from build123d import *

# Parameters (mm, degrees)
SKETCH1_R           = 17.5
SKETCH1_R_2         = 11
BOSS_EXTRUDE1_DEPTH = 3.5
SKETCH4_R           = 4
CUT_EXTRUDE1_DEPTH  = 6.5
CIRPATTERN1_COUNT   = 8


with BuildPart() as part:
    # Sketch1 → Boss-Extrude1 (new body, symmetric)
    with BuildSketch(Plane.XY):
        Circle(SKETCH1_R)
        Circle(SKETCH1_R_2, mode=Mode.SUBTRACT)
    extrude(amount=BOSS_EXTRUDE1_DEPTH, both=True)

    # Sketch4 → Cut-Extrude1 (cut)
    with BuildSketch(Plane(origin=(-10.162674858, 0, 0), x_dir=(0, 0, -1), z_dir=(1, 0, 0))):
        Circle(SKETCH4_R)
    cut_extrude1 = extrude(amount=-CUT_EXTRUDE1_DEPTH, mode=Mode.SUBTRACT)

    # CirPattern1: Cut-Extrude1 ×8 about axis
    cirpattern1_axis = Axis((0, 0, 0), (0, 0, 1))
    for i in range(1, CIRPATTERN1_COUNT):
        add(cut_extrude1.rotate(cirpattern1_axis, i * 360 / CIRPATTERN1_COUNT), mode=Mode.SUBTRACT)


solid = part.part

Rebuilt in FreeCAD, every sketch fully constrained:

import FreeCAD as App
import Part
import Sketcher

V = App.Vector

doc = App.newDocument("Part")
params = doc.addObject("Spreadsheet::Sheet", "Params")
for row, (alias, value) in enumerate([
    ("sketch1_diameter", "35 mm"),
    ("sketch1_diameter2", "22 mm"),
    ("pad1_length", "7 mm"),
    ("sketch2_diameter", "8 mm"),
    ("pocket1_length", "6.5 mm"),
], start=1):
    params.set(f"A{row}", alias)
    params.set(f"B{row}", "=" + value)
    params.setAlias(f"B{row}", alias)

body = doc.addObject("PartDesign::Body", "Body")

# Sketch on XY plane
sketch1 = body.newObject("Sketcher::SketchObject", "Sketch")
sketch1.AttachmentSupport = (doc.getObject("XY_Plane"), [""])
sketch1.MapMode = "FlatFace"
sketch1.addGeometry(Part.Circle(V(0, 0, 0), V(0, 0, 1), 17.5), False)
sketch1.addGeometry(Part.Circle(V(0, 0, 0), V(0, 0, 1), 11), False)
sketch1.addConstraint(Sketcher.Constraint("Coincident", 0, 3, -1, 1))
sketch1.addConstraint(Sketcher.Constraint("Coincident", 1, 3, -1, 1))
sketch1.addConstraint(Sketcher.Constraint("Diameter", 0, 35.0))
sketch1.addConstraint(Sketcher.Constraint("Diameter", 1, 22.0))
sketch1.setExpression("Constraints[2]", "Params.sketch1_diameter")
sketch1.setExpression("Constraints[3]", "Params.sketch1_diameter2")
pad1 = body.newObject("PartDesign::Pad", "Pad")
pad1.Profile = sketch1
pad1.setExpression("Length", "Params.pad1_length")
pad1.Midplane = True

# Sketch on YZ plane
sketch2 = body.newObject("Sketcher::SketchObject", "Sketch001")
sketch2.AttachmentSupport = (doc.getObject("YZ_Plane"), [""])
sketch2.MapMode = "FlatFace"
sketch2.AttachmentOffset = App.Placement(V(0, 0, -10.162675), App.Rotation())
sketch2.addGeometry(Part.Circle(V(0, 0, 0), V(0, 0, 1), 4), False)
sketch2.addConstraint(Sketcher.Constraint("Coincident", 0, 3, -1, 1))
sketch2.addConstraint(Sketcher.Constraint("Diameter", 0, 8.0))
sketch2.setExpression("Constraints[1]", "Params.sketch2_diameter")
pocket1 = body.newObject("PartDesign::Pocket", "Pocket")
pocket1.Profile = sketch2
pocket1.setExpression("Length", "Params.pocket1_length")
doc.recompute()

polarpattern = body.newObject("PartDesign::PolarPattern", "PolarPattern")
polarpattern.Originals = [pocket1]
polarpattern.Axis = (doc.getObject("Z_Axis"), [""])
polarpattern.Angle = 360
polarpattern.Occurrences = 8
body.Tip = polarpattern

doc.recompute()
